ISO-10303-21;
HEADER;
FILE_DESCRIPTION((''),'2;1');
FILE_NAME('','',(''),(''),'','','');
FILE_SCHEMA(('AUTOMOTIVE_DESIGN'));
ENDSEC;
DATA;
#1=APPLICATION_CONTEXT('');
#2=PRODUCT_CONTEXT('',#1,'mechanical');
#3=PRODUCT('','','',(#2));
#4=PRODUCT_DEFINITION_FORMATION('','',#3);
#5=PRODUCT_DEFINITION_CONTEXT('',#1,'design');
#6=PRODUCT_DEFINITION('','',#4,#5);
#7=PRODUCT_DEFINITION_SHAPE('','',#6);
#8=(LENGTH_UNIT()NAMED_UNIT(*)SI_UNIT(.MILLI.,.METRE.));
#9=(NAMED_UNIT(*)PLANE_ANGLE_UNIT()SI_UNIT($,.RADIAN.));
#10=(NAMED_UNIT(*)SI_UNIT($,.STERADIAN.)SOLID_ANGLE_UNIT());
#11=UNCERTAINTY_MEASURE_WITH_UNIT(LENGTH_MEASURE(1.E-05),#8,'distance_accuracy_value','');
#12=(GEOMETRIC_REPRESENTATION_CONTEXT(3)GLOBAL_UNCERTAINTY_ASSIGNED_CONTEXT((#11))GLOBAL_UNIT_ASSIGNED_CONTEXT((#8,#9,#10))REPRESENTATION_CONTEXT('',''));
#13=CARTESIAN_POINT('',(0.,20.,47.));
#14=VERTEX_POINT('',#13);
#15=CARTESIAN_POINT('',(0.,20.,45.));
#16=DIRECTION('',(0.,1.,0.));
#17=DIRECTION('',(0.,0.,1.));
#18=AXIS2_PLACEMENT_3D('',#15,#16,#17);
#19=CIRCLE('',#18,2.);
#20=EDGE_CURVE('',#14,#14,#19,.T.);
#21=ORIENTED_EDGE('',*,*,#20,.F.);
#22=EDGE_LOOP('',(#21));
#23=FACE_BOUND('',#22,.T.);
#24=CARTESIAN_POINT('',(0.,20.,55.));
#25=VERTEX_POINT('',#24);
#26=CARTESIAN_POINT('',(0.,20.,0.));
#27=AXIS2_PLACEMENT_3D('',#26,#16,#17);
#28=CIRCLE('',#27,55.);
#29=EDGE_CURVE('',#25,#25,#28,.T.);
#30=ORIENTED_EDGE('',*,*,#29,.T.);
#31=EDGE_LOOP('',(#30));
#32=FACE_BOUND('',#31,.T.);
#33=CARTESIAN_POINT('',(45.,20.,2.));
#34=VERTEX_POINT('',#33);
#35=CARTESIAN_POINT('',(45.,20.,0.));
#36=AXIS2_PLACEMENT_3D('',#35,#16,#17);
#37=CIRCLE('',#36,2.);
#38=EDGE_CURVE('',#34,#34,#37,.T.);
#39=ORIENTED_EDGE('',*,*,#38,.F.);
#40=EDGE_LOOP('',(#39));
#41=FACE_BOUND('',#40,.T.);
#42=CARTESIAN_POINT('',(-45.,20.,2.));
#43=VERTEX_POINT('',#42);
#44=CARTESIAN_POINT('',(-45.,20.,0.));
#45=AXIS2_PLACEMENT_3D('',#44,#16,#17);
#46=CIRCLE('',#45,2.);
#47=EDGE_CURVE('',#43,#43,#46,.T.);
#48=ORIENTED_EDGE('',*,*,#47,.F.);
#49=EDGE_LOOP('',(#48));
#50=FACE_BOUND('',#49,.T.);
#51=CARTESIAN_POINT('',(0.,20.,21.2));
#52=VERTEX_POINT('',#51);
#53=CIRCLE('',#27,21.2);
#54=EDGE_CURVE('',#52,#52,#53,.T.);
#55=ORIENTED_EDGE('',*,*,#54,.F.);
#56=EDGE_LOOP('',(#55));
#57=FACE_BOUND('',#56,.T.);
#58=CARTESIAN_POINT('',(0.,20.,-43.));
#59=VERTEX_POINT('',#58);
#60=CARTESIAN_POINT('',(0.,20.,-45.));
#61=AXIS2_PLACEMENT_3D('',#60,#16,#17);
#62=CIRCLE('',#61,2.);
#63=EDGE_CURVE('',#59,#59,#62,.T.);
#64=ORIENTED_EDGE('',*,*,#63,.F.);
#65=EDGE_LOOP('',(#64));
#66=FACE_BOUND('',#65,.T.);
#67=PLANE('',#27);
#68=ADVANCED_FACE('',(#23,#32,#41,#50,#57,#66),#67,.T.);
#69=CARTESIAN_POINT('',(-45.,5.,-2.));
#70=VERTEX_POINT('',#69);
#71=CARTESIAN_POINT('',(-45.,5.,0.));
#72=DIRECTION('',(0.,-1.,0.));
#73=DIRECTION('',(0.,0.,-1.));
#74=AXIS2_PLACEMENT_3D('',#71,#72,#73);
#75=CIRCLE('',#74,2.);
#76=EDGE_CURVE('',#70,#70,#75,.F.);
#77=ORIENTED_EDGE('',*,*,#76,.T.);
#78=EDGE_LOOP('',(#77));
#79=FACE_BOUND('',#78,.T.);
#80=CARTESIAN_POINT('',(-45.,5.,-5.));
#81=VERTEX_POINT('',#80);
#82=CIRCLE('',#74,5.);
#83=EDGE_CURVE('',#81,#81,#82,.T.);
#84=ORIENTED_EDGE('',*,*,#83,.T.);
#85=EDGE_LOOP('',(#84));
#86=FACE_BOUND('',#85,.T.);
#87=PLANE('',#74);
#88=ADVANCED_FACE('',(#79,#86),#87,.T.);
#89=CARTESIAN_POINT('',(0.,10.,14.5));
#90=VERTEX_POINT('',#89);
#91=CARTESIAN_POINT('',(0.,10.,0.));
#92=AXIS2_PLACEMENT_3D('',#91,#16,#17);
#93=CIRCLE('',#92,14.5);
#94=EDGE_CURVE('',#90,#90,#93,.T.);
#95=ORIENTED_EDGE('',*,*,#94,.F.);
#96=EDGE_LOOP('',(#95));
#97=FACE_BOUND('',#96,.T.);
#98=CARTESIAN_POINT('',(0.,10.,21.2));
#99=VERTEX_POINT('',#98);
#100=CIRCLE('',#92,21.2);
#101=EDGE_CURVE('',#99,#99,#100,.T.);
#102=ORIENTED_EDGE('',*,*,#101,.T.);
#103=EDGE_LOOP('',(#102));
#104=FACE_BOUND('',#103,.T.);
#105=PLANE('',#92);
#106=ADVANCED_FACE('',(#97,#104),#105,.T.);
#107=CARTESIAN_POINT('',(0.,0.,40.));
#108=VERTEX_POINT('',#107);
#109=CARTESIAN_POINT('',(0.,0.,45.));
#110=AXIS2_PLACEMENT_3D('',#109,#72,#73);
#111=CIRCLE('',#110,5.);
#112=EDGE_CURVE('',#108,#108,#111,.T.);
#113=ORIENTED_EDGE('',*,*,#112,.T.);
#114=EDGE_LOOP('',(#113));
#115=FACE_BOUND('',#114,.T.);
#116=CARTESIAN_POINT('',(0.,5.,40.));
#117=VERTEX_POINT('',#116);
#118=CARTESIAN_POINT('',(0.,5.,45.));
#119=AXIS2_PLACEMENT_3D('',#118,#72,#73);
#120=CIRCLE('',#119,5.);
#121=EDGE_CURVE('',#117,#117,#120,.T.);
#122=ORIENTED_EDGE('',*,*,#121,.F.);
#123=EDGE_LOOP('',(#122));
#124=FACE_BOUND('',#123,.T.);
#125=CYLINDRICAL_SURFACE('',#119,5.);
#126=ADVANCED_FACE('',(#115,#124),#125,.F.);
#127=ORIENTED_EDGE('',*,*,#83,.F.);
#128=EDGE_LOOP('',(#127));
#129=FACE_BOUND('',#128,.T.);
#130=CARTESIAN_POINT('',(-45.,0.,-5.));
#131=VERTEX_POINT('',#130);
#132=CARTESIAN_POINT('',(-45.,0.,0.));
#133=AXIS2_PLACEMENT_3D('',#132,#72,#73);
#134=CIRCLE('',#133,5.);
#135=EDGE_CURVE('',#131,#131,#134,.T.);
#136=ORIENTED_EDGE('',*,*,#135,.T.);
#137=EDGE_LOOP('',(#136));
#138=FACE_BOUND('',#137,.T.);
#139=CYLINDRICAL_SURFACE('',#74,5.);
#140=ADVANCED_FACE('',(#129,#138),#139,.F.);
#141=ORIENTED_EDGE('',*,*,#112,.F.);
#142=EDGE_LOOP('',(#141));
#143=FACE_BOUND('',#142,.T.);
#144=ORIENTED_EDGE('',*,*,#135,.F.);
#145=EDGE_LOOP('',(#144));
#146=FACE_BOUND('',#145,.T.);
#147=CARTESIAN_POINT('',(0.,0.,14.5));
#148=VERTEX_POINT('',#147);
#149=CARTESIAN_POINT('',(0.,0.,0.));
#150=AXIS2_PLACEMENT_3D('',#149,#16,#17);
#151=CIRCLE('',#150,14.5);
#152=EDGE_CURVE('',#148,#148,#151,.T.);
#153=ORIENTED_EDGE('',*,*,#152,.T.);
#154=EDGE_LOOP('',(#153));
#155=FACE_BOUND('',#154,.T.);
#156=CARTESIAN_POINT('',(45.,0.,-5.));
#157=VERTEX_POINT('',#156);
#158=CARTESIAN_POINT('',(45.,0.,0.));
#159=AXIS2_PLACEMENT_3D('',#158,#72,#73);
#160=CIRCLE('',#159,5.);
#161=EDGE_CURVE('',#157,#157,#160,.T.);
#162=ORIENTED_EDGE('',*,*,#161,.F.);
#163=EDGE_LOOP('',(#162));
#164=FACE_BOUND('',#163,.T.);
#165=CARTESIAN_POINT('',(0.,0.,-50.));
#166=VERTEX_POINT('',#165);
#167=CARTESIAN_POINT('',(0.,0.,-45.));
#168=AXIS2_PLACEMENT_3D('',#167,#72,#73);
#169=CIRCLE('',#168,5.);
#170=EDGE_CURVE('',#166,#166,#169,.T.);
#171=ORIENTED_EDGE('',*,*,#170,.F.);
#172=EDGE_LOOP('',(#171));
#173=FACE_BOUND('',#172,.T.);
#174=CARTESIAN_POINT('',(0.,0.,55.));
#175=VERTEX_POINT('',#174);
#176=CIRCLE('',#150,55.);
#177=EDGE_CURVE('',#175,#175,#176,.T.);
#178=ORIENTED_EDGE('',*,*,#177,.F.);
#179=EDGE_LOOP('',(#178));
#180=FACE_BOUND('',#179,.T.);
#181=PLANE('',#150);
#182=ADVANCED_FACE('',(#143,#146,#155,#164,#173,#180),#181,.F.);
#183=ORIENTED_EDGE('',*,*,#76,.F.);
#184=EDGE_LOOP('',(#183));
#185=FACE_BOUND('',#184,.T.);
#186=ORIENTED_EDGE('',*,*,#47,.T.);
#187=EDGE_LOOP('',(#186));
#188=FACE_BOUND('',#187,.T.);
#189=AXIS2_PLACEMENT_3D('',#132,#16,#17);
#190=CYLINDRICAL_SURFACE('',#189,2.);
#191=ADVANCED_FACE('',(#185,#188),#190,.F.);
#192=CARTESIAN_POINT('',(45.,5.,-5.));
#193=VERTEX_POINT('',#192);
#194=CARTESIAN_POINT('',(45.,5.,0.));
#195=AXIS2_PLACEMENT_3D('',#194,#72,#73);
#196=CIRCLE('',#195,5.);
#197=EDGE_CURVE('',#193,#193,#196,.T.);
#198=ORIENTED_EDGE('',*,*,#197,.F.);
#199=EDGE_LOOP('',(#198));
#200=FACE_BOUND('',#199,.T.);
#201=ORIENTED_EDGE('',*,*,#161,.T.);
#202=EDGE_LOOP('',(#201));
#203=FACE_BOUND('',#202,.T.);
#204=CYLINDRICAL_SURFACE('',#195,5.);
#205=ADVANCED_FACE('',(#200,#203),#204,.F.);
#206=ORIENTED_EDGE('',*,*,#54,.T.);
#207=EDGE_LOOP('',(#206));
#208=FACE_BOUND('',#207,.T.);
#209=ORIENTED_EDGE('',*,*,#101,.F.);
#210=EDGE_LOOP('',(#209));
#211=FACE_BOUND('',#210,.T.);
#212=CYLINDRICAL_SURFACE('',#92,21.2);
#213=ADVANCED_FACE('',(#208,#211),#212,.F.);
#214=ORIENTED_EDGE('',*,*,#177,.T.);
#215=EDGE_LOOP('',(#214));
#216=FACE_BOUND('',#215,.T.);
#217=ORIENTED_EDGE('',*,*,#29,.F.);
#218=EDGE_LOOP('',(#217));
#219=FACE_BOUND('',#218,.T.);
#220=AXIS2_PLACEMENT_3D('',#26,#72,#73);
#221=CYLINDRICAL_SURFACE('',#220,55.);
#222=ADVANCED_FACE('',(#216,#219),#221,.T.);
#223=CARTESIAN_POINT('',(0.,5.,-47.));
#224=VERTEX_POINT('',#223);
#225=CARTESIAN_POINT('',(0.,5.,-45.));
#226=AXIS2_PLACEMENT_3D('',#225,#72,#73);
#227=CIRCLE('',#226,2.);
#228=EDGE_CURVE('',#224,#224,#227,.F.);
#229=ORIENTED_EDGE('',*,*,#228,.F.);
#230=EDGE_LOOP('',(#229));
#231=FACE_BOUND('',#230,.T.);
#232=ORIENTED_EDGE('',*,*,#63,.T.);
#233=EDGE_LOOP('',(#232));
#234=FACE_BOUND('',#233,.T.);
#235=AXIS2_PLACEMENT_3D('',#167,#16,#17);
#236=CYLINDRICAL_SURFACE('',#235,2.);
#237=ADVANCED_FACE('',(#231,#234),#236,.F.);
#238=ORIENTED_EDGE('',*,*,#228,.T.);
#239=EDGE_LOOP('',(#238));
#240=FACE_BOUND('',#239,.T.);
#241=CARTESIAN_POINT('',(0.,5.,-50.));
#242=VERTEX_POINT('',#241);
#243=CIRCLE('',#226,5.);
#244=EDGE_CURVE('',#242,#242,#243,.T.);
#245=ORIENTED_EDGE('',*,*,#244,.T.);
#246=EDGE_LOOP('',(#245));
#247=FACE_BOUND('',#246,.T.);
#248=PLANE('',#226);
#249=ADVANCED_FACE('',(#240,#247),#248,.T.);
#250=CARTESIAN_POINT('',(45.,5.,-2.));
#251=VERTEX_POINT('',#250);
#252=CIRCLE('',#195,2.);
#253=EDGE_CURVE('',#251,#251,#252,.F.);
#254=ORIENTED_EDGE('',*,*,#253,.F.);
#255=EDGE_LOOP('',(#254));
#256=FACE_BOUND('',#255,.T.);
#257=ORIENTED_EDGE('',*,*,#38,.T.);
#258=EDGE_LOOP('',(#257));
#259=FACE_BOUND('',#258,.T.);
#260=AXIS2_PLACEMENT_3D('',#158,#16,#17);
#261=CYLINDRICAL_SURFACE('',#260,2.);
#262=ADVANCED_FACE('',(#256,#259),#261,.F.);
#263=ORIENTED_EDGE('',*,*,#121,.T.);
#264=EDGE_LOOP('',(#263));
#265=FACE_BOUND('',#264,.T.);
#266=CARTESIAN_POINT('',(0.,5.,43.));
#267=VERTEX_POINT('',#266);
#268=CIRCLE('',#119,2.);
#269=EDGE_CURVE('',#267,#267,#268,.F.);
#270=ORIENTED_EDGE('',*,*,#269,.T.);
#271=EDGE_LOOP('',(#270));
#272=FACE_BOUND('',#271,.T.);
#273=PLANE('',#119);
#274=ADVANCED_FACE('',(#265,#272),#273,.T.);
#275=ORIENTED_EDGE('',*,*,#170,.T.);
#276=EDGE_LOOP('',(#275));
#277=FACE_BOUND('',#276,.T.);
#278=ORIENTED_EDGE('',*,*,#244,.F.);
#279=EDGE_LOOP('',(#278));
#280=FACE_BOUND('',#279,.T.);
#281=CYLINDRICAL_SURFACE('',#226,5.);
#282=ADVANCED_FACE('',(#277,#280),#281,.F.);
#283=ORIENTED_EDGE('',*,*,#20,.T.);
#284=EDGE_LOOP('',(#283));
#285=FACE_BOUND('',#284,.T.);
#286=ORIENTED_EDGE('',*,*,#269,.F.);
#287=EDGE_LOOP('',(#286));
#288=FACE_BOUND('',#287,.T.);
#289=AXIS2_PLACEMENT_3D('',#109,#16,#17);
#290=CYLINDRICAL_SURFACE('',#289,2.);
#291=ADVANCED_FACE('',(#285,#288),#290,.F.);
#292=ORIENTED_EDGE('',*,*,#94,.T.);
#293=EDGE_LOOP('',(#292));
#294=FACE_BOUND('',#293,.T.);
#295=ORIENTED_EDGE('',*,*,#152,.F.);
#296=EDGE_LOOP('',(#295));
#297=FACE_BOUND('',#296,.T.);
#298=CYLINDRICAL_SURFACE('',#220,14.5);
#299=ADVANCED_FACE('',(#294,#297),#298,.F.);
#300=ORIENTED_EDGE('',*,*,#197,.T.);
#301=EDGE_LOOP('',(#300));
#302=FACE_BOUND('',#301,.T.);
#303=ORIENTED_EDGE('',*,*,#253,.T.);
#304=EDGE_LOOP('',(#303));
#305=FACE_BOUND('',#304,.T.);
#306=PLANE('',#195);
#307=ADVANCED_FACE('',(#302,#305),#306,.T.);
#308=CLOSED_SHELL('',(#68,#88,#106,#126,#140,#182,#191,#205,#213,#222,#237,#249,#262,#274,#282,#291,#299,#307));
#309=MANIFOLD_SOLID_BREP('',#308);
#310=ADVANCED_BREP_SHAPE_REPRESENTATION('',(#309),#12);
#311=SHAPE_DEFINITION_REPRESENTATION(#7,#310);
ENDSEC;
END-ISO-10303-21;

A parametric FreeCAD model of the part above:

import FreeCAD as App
import Part
import Sketcher
from FreeCAD import Vector
Q = App.Units.Quantity

doc = App.newDocument("Part")
body = doc.addObject("PartDesign::Body", "Body")

sketch1 = body.newObject("Sketcher::SketchObject", "Sketch")
sketch1.AttachmentSupport = (doc.getObject("XZ_Plane"), [""])
sketch1.MapMode = "FlatFace"
sketch1.addGeometry([
    Part.Circle(Vector(0, 0, 0), Vector(0, 0, 1), 55),
    Part.Circle(Vector(0, 0, 0), Vector(0, 0, 1), 14.5),
], False)
sketch1.addConstraint([
    Sketcher.Constraint("Coincident", 0, 3, -1, 1),
    Sketcher.Constraint("Coincident", 1, 3, -1, 1),
    Sketcher.Constraint("Diameter", 0, Q("110 mm")),
    Sketcher.Constraint("Diameter", 1, Q("29 mm")),
])
pad1 = body.newObject("PartDesign::Pad", "Pad")
pad1.Profile = sketch1
pad1.Length = 20
pad1.Reversed = True

sketch2 = body.newObject("Sketcher::SketchObject", "Sketch001")
sketch2.AttachmentSupport = (doc.getObject("XZ_Plane"), [""])
sketch2.MapMode = "FlatFace"
sketch2.AttachmentOffset = App.Placement(Vector(0, 0, -20), App.Rotation())
sketch2.addGeometry(Part.Circle(Vector(0, 0, 0), Vector(0, 0, 1), 21.2), False)
sketch2.addConstraint([
    Sketcher.Constraint("Coincident", 0, 3, -1, 1),
    Sketcher.Constraint("Diameter", 0, Q("42.4 mm")),
])
pocket1 = body.newObject("PartDesign::Pocket", "Pocket")
pocket1.Profile = sketch2
pocket1.Length = 10
pocket1.Reversed = True

sketch3 = body.newObject("Sketcher::SketchObject", "Sketch002")
sketch3.AttachmentSupport = (doc.getObject("XZ_Plane"), [""])
sketch3.MapMode = "FlatFace"
sketch3.AttachmentOffset = App.Placement(Vector(0, 0, -20), App.Rotation())
sketch3.addGeometry([
    Part.Circle(Vector(0, -45, 0), Vector(0, 0, 1), 2),
    Part.Circle(Vector(45, 0, 0), Vector(0, 0, 1), 2),
    Part.Circle(Vector(0, 45, 0), Vector(0, 0, 1), 2),
    Part.Circle(Vector(-45, 0, 0), Vector(0, 0, 1), 2),
], False)
sketch3.addConstraint([
    Sketcher.Constraint("Equal", 0, 1),
    Sketcher.Constraint("Equal", 1, 2),
    Sketcher.Constraint("Equal", 2, 3),
    Sketcher.Constraint("Symmetric", 0, 3, 2, 3, -1, 1),
    Sketcher.Constraint("Symmetric", 1, 3, 3, 3, -1, 1),
    Sketcher.Constraint("PointOnObject", 0, 3, -2),
    Sketcher.Constraint("PointOnObject", 1, 3, -1),
    Sketcher.Constraint("Diameter", 0, Q("4 mm")),
    Sketcher.Constraint("DistanceY", 0, 3, -1, 1, Q("45 mm")),
    Sketcher.Constraint("DistanceX", -1, 1, 1, 3, Q("45 mm")),
])
pocket2 = body.newObject("PartDesign::Pocket", "Pocket001")
pocket2.Profile = sketch3
pocket2.Length = 20
pocket2.Reversed = True

sketch4 = body.newObject("Sketcher::SketchObject", "Sketch003")
sketch4.AttachmentSupport = (doc.getObject("XZ_Plane"), [""])
sketch4.MapMode = "FlatFace"
sketch4.addGeometry([
    Part.Circle(Vector(0, 45, 0), Vector(0, 0, 1), 5),
    Part.Circle(Vector(45, 0, 0), Vector(0, 0, 1), 5),
    Part.Circle(Vector(0, -45, 0), Vector(0, 0, 1), 5),
    Part.Circle(Vector(-45, 0, 0), Vector(0, 0, 1), 5),
], False)
sketch4.addConstraint([
    Sketcher.Constraint("Equal", 0, 1),
    Sketcher.Constraint("Equal", 1, 2),
    Sketcher.Constraint("Equal", 2, 3),
    Sketcher.Constraint("Symmetric", 0, 3, 2, 3, -1, 1),
    Sketcher.Constraint("Symmetric", 1, 3, 3, 3, -1, 1),
    Sketcher.Constraint("PointOnObject", 0, 3, -2),
    Sketcher.Constraint("PointOnObject", 1, 3, -1),
    Sketcher.Constraint("Diameter", 0, Q("10 mm")),
    Sketcher.Constraint("DistanceY", -1, 1, 0, 3, Q("45 mm")),
    Sketcher.Constraint("DistanceX", -1, 1, 1, 3, Q("45 mm")),
])
pocket3 = body.newObject("PartDesign::Pocket", "Pocket002")
pocket3.Profile = sketch4
pocket3.Length = 5

doc.recompute()
